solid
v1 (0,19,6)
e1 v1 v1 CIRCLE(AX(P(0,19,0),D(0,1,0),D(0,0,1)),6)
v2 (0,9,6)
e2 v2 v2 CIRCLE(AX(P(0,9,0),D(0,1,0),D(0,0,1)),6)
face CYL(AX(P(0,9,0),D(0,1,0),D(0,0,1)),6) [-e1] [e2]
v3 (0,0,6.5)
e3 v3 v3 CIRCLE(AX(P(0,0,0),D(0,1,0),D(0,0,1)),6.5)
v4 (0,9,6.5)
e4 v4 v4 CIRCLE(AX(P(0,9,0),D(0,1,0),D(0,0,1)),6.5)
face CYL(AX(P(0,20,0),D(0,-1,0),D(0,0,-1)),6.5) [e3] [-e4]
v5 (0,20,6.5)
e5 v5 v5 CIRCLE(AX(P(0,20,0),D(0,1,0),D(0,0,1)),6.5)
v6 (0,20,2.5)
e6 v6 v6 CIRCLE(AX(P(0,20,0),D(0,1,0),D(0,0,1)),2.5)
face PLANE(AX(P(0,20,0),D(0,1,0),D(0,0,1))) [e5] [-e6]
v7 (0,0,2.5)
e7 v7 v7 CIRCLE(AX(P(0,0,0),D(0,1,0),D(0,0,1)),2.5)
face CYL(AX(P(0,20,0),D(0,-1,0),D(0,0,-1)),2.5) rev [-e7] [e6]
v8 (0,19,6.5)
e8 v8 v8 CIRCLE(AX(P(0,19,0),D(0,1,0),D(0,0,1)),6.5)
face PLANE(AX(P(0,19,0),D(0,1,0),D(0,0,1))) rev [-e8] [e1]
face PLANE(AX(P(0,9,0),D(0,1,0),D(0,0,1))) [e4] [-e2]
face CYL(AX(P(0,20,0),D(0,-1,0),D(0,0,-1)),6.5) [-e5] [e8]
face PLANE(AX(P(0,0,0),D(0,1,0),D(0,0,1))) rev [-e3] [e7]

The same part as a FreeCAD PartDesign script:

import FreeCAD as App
import Part
import Sketcher
Q = App.Units.Quantity

doc = App.newDocument("Part")
body = doc.addObject("PartDesign::Body", "Body")

# Sketch on XZ plane
sketch1 = body.newObject("Sketcher::SketchObject", "Sketch")
sketch1.AttachmentSupport = (doc.getObject("XZ_Plane"), [""])
sketch1.MapMode = "FlatFace"
sketch1.addGeometry([
    Part.Circle(App.Vector(0, 0, 0), App.Vector(0, 0, 1), 6.5),
    Part.Circle(App.Vector(0, 0, 0), App.Vector(0, 0, 1), 2.5),
], False)
sketch1.addConstraint([
    Sketcher.Constraint("Coincident", 0, 3, -1, 1),
    Sketcher.Constraint("Coincident", 1, 3, -1, 1),
    Sketcher.Constraint("Diameter", 0, Q("13 mm")),
    Sketcher.Constraint("Diameter", 1, Q("5 mm")),
])
pad1 = body.newObject("PartDesign::Pad", "Pad")
pad1.Profile = sketch1
pad1.Length = 20
pad1.Reversed = True

# Sketch on XZ plane
sketch2 = body.newObject("Sketcher::SketchObject", "Sketch001")
sketch2.AttachmentSupport = (doc.getObject("XZ_Plane"), [""])
sketch2.MapMode = "FlatFace"
sketch2.AttachmentOffset = App.Placement(App.Vector(0, 0, -19), App.Rotation())
sketch2.addGeometry([
    Part.Circle(App.Vector(0, 0, 0), App.Vector(0, 0, 1), 6.793151),
    Part.Circle(App.Vector(0, 0, 0), App.Vector(0, 0, 1), 6),
], False)
sketch2.addConstraint([
    Sketcher.Constraint("Coincident", 0, 3, -1, 1),
    Sketcher.Constraint("Coincident", 1, 3, -1, 1),
    Sketcher.Constraint("Diameter", 1, Q("12 mm")),
    Sketcher.Constraint("Diameter", 0, Q("13.586303 mm")),
])
pocket1 = body.newObject("PartDesign::Pocket", "Pocket")
pocket1.Profile = sketch2
pocket1.Length = 10
pocket1.Reversed = True

doc.recompute()
